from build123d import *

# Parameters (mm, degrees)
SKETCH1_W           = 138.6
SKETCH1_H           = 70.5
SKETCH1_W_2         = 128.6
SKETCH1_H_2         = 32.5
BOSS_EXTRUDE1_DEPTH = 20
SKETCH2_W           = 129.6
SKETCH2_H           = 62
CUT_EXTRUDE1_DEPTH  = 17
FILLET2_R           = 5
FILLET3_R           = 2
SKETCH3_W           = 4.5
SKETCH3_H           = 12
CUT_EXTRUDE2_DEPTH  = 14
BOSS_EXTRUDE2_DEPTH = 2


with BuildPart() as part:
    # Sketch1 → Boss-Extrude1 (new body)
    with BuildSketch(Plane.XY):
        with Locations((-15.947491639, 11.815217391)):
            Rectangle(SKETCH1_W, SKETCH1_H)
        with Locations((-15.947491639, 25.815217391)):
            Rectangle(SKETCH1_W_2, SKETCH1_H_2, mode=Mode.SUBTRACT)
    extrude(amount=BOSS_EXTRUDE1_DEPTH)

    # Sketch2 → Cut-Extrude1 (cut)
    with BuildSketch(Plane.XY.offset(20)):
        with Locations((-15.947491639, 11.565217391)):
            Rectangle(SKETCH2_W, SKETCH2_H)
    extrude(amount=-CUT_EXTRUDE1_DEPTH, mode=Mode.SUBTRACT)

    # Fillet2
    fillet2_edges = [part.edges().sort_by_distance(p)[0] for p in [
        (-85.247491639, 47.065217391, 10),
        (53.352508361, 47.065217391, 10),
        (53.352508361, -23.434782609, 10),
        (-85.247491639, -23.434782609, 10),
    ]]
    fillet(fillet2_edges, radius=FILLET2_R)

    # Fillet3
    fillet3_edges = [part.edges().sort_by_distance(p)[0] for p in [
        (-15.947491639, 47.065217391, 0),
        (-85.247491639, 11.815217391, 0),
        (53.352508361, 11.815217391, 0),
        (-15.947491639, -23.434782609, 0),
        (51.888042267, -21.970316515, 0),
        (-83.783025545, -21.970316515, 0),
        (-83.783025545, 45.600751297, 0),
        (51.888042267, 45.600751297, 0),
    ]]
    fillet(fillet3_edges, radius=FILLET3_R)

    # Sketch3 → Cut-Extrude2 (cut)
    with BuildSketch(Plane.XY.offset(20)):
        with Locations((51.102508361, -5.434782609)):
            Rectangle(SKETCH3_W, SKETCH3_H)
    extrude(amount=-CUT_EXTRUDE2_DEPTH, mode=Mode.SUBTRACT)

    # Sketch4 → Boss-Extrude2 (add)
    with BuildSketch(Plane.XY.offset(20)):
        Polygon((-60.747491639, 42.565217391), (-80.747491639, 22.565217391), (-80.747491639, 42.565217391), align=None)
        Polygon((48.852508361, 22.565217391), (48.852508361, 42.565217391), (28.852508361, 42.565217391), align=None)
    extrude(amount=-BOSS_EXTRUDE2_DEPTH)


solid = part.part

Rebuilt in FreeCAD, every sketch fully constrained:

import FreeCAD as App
import Part
import Sketcher
from FreeCAD import Vector
Q = App.Units.Quantity


def edges_at(feature, points):
    """Names of the edges that pass closest to the given points."""
    edges = feature.Shape.Edges
    near = lambda p: min(range(len(edges)), key=lambda i: edges[i].distToShape(Part.Vertex(*p))[0])
    return sorted({f"Edge{near(p) + 1}" for p in points})


def add_polygon(sketch, points):
    """Adds a closed chain of lines whose ends are joined by coincident constraints."""
    first, n = sketch.GeometryCount, len(points)
    for a, b in zip(points, points[1:] + points[:1]):
        sketch.addGeometry(Part.LineSegment(App.Vector(*a, 0), App.Vector(*b, 0)), False)
    for i in range(n):
        sketch.addConstraint(Sketcher.Constraint("Coincident", first + i, 2, first + (i + 1) % n, 1))

doc = App.newDocument("Part")
body = doc.addObject("PartDesign::Body", "Body")

# Sketch on XY plane
sketch1 = body.newObject("Sketcher::SketchObject", "Sketch")
sketch1.AttachmentSupport = (doc.getObject("XY_Plane"), [""])
sketch1.MapMode = "FlatFace"
add_polygon(sketch1, [(-85, 47), (-85, -23), (53, -23), (53, 47)])  # lines 0-3
add_polygon(sketch1, [(48, 10), (-80, 10), (-80, 42), (48, 42)])  # lines 4-7
sketch1.addConstraint(Sketcher.Constraint("Vertical", 0))
sketch1.addConstraint(Sketcher.Constraint("Horizontal", 1))
sketch1.addConstraint(Sketcher.Constraint("Vertical", 2))
sketch1.addConstraint(Sketcher.Constraint("Horizontal", 3))
sketch1.addConstraint(Sketcher.Constraint("Horizontal", 4))
sketch1.addConstraint(Sketcher.Constraint("Vertical", 5))
sketch1.addConstraint(Sketcher.Constraint("Horizontal", 6))
sketch1.addConstraint(Sketcher.Constraint("Vertical", 7))
sketch1.addConstraint(Sketcher.Constraint("DistanceX", 1, 1, 1, 2, Q("138.6 mm")))
sketch1.addConstraint(Sketcher.Constraint("DistanceX", 4, 2, 4, 1, Q("128.6 mm")))
sketch1.addConstraint(Sketcher.Constraint("DistanceY", 0, 2, 0, 1, Q("70.5 mm")))
sketch1.addConstraint(Sketcher.Constraint("DistanceY", 5, 1, 5, 2, Q("32.5 mm")))
sketch1.addConstraint(Sketcher.Constraint("DistanceX", 0, 2, 4, 2, Q("5 mm")))
sketch1.addConstraint(Sketcher.Constraint("DistanceY", 0, 2, 4, 2, Q("33 mm")))
sketch1.addConstraint(Sketcher.Constraint("DistanceX", 0, 2, -1, 1, Q("85.247492 mm")))
sketch1.addConstraint(Sketcher.Constraint("DistanceY", 0, 2, -1, 1, Q("23.434783 mm")))
pad1 = body.newObject("PartDesign::Pad", "Pad")
pad1.Profile = sketch1
pad1.Length = 20

# Sketch on XY plane
sketch2 = body.newObject("Sketcher::SketchObject", "Sketch001")
sketch2.AttachmentSupport = (doc.getObject("XY_Plane"), [""])
sketch2.MapMode = "FlatFace"
sketch2.AttachmentOffset = App.Placement(Vector(0, 0, 20), App.Rotation())
add_polygon(sketch2, [(-81, 43), (-81, -19), (49, -19), (49, 43)])  # lines 0-3
sketch2.addConstraint(Sketcher.Constraint("Vertical", 0))
sketch2.addConstraint(Sketcher.Constraint("Horizontal", 1))
sketch2.addConstraint(Sketcher.Constraint("Vertical", 2))
sketch2.addConstraint(Sketcher.Constraint("Horizontal", 3))
sketch2.addConstraint(Sketcher.Constraint("DistanceY", 0, 2, 0, 1, Q("62 mm")))
sketch2.addConstraint(Sketcher.Constraint("DistanceX", 1, 1, 1, 2, Q("129.6 mm")))
sketch2.addConstraint(Sketcher.Constraint("DistanceX", 0, 2, -1, 1, Q("80.747492 mm")))
sketch2.addConstraint(Sketcher.Constraint("DistanceY", 0, 2, -1, 1, Q("19.434783 mm")))
pocket1 = body.newObject("PartDesign::Pocket", "Pocket")
pocket1.Profile = sketch2
pocket1.Length = 17
doc.recompute()

fillet = body.newObject("PartDesign::Fillet", "Fillet")
fillet.Base = (pocket1, edges_at(pocket1, [
    (-85.247, 47.065, 10),
    (53.353, 47.065, 10),
    (53.353, -23.435, 10),
    (-85.247, -23.435, 10),
]))
fillet.Radius = 5
doc.recompute()

fillet2 = body.newObject("PartDesign::Fillet", "Fillet001")
fillet2.Base = (fillet, edges_at(fillet, [
    (-15.947, 47.065, 0),
    (-85.247, 11.815, 0),
    (53.353, 11.815, 0),
    (-15.947, -23.435, 0),
    (51.888, -21.97, 0),
    (-83.783, -21.97, 0),
    (-83.783, 45.601, 0),
    (51.888, 45.601, 0),
]))
fillet2.Radius = 2

# Sketch on XY plane
sketch3 = body.newObject("Sketcher::SketchObject", "Sketch002")
sketch3.AttachmentSupport = (doc.getObject("XY_Plane"), [""])
sketch3.MapMode = "FlatFace"
sketch3.AttachmentOffset = App.Placement(Vector(0, 0, 20), App.Rotation())
add_polygon(sketch3, [(48.9, 0.6), (48.9, -11.4), (53.4, -11.4), (53.4, 0.6)])  # lines 0-3
sketch3.addConstraint(Sketcher.Constraint("Vertical", 0))
sketch3.addConstraint(Sketcher.Constraint("Horizontal", 1))
sketch3.addConstraint(Sketcher.Constraint("Vertical", 2))
sketch3.addConstraint(Sketcher.Constraint("Horizontal", 3))
sketch3.addConstraint(Sketcher.Constraint("DistanceY", 0, 2, 0, 1, Q("12 mm")))
sketch3.addConstraint(Sketcher.Constraint("DistanceX", 1, 1, 1, 2, Q("4.5 mm")))
sketch3.addConstraint(Sketcher.Constraint("DistanceX", -1, 1, 0, 2, Q("48.852508 mm")))
sketch3.addConstraint(Sketcher.Constraint("DistanceY", 0, 2, -1, 1, Q("11.434783 mm")))
pocket2 = body.newObject("PartDesign::Pocket", "Pocket001")
pocket2.Profile = sketch3
pocket2.Length = 14

# Sketch on XY plane
sketch4 = body.newObject("Sketcher::SketchObject", "Sketch003")
sketch4.AttachmentSupport = (doc.getObject("XY_Plane"), [""])
sketch4.MapMode = "FlatFace"
sketch4.AttachmentOffset = App.Placement(Vector(0, 0, 20), App.Rotation())
add_polygon(sketch4, [(-81, 23), (-61, 43), (-81, 43)])  # lines 0-2
add_polygon(sketch4, [(49, 23), (49, 43), (29, 43)])  # lines 3-5
sketch4.addConstraint(Sketcher.Constraint("Horizontal", 1))
sketch4.addConstraint(Sketcher.Constraint("Vertical", 2))
sketch4.addConstraint(Sketcher.Constraint("Vertical", 3))
sketch4.addConstraint(Sketcher.Constraint("Horizontal", 4))
sketch4.addConstraint(Sketcher.Constraint("Perpendicular", 0, 5))
sketch4.addConstraint(Sketcher.Constraint("Horizontal", 1, 2, 3, 2))
sketch4.addConstraint(Sketcher.Constraint("Horizontal", 2, 2, 5, 2))
sketch4.addConstraint(Sketcher.Constraint("Equal", 1, 4))
sketch4.addConstraint(Sketcher.Constraint("DistanceX", 1, 2, 1, 1, Q("20 mm")))
sketch4.addConstraint(Sketcher.Constraint("DistanceX", 0, 2, 3, 2, Q("109.6 mm")))
sketch4.addConstraint(Sketcher.Constraint("DistanceX", 0, 2, -1, 1, Q("60.747492 mm")))
sketch4.addConstraint(Sketcher.Constraint("DistanceY", -1, 1, 0, 2, Q("42.565217 mm")))
pad2 = body.newObject("PartDesign::Pad", "Pad001")
pad2.Profile = sketch4
pad2.Length = 2
pad2.Reversed = True

doc.recompute()
